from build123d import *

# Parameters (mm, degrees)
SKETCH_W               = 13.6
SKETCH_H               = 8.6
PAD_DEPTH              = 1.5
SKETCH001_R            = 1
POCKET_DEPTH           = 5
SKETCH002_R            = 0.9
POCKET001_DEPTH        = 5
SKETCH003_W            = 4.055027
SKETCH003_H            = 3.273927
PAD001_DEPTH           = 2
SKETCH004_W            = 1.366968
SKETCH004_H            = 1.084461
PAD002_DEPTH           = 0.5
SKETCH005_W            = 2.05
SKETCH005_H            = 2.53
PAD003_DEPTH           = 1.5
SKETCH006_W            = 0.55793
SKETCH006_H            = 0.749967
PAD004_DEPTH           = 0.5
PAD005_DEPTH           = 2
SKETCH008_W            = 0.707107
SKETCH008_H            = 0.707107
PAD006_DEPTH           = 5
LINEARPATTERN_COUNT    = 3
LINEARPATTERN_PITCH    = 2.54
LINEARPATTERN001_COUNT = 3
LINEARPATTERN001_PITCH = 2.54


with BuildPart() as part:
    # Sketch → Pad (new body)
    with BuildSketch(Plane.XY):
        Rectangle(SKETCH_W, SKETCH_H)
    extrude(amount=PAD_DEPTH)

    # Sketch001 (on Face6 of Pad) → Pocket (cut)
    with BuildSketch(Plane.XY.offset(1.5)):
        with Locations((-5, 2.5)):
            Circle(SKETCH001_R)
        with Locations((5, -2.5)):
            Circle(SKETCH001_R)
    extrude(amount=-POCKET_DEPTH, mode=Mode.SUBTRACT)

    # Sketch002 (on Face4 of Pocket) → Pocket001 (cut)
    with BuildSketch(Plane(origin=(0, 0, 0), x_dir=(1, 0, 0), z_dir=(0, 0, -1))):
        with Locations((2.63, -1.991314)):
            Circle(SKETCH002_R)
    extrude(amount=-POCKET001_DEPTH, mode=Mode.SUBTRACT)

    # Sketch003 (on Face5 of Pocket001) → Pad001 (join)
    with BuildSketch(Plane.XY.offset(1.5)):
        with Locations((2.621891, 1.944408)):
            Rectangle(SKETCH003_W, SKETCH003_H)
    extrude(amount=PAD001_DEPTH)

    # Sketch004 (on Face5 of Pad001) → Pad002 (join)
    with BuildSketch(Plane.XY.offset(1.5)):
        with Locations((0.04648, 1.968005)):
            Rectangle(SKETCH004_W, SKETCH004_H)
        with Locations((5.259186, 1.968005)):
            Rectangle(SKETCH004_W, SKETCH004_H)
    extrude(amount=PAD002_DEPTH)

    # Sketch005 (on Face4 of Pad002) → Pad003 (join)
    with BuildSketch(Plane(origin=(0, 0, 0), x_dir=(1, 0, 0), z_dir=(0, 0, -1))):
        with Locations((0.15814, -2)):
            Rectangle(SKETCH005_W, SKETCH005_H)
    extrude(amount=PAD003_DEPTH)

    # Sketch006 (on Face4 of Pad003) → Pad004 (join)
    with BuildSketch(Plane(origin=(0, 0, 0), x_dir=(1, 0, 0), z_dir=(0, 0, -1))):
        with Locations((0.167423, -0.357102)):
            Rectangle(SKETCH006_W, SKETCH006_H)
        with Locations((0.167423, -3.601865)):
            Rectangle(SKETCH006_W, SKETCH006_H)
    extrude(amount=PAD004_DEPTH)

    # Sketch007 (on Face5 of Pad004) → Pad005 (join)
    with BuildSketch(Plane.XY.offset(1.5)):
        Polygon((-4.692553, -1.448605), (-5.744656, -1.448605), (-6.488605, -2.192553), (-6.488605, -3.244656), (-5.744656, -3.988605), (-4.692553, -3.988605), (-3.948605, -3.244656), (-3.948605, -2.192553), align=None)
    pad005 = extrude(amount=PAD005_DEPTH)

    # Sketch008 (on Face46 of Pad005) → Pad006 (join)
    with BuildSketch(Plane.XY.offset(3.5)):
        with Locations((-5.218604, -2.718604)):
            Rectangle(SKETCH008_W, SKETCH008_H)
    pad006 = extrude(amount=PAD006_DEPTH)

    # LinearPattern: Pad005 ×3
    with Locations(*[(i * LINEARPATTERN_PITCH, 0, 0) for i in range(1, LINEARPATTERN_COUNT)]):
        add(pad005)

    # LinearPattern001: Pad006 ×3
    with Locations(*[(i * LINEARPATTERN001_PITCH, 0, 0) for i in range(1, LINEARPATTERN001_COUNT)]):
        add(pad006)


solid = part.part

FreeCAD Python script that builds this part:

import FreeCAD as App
import Part
import Sketcher
from FreeCAD import Vector


def add_polygon(sketch, points):
    """Adds a closed chain of lines whose ends are joined by coincident constraints."""
    first, n = sketch.GeometryCount, len(points)
    for a, b in zip(points, points[1:] + points[:1]):
        sketch.addGeometry(Part.LineSegment(App.Vector(*a, 0), App.Vector(*b, 0)), False)
    for i in range(n):
        sketch.addConstraint(Sketcher.Constraint("Coincident", first + i, 2, first + (i + 1) % n, 1))

doc = App.newDocument("Part")
body = doc.addObject("PartDesign::Body", "Body")

# Sketch on XY plane
sketch1 = body.newObject("Sketcher::SketchObject", "Sketch")
sketch1.AttachmentSupport = (doc.getObject("XY_Plane"), [""])
sketch1.MapMode = "FlatFace"
add_polygon(sketch1, [(-6.8, 4.3), (-6.8, -4.3), (6.8, -4.3), (6.8, 4.3)])  # lines 0-3
sketch1.addConstraint([
    Sketcher.Constraint("Vertical", 0),
    Sketcher.Constraint("Horizontal", 1),
    Sketcher.Constraint("Vertical", 2),
    Sketcher.Constraint("Horizontal", 3),
    Sketcher.Constraint("Symmetric", 0, 2, 2, 2, -1, 1),
    Sketcher.Constraint("DistanceX", 1, 1, 1, 2, 13.6),
    Sketcher.Constraint("DistanceY", 0, 2, 0, 1, 8.6),
])
pad1 = body.newObject("PartDesign::Pad", "Pad")
pad1.Profile = sketch1
pad1.Length = 1.5

# Sketch on XY plane
sketch2 = body.newObject("Sketcher::SketchObject", "Sketch001")
sketch2.AttachmentSupport = (doc.getObject("XY_Plane"), [""])
sketch2.MapMode = "FlatFace"
sketch2.AttachmentOffset = App.Placement(Vector(0, 0, 1.5), App.Rotation())
sketch2.addGeometry([
    Part.Circle(Vector(-5, 2.5, 0), Vector(0, 0, 1), 1),
    Part.Circle(Vector(5, -2.5, 0), Vector(0, 0, 1), 1),
], False)
sketch2.addConstraint([
    Sketcher.Constraint("Equal", 0, 1),
    Sketcher.Constraint("Symmetric", 0, 3, 1, 3, -1, 1),
    Sketcher.Constraint("Diameter", 0, 2.0),
    Sketcher.Constraint("DistanceX", 0, 3, -1, 1, 5.0),
    Sketcher.Constraint("DistanceY", 1, 3, 0, 3, 5.0),
])
pocket1 = body.newObject("PartDesign::Pocket", "Pocket")
pocket1.Profile = sketch2
pocket1.Length = 5

# Sketch on XY plane
sketch3 = body.newObject("Sketcher::SketchObject", "Sketch002")
sketch3.AttachmentSupport = (doc.getObject("XY_Plane"), [""])
sketch3.MapMode = "FlatFace"
sketch3.addGeometry(Part.Circle(Vector(2.63, 1.991314, 0), Vector(0, 0, 1), 0.9), False)
sketch3.addConstraint([
    Sketcher.Constraint("Diameter", 0, 1.8),
    Sketcher.Constraint("DistanceX", -1, 1, 0, 3, 2.63),
    Sketcher.Constraint("DistanceY", -1, 1, 0, 3, 1.991314),
])
pocket2 = body.newObject("PartDesign::Pocket", "Pocket001")
pocket2.Profile = sketch3
pocket2.Length = 5
pocket2.Reversed = True

# Sketch on XY plane
sketch4 = body.newObject("Sketcher::SketchObject", "Sketch003")
sketch4.AttachmentSupport = (doc.getObject("XY_Plane"), [""])
sketch4.MapMode = "FlatFace"
sketch4.AttachmentOffset = App.Placement(Vector(0, 0, 1.5), App.Rotation())
add_polygon(sketch4, [(0.594378, 3.581371), (0.594378, 0.307445), (4.649405, 0.307445), (4.649405, 3.581371)])  # lines 0-3
sketch4.addConstraint([
    Sketcher.Constraint("Vertical", 0),
    Sketcher.Constraint("Horizontal", 1),
    Sketcher.Constraint("Vertical", 2),
    Sketcher.Constraint("Horizontal", 3),
    Sketcher.Constraint("DistanceX", 1, 1, 1, 2, 4.055027),
    Sketcher.Constraint("DistanceY", 0, 2, 0, 1, 3.273927),
    Sketcher.Constraint("DistanceY", -1, 1, 2, 2, 3.581371),
    Sketcher.Constraint("DistanceX", -1, 1, 0, 2, 0.594378),
])
pad2 = body.newObject("PartDesign::Pad", "Pad001")
pad2.Profile = sketch4
pad2.Length = 2

# Sketch on XY plane
sketch5 = body.newObject("Sketcher::SketchObject", "Sketch004")
sketch5.AttachmentSupport = (doc.getObject("XY_Plane"), [""])
sketch5.MapMode = "FlatFace"
sketch5.AttachmentOffset = App.Placement(Vector(0, 0, 1.5), App.Rotation())
add_polygon(sketch5, [(-0.637004, 2.510235), (-0.637004, 1.425774), (0.729964, 1.425774), (0.729964, 2.510235)])  # lines 0-3
add_polygon(sketch5, [(4.575702, 2.510235), (4.575702, 1.425774), (5.94267, 1.425774), (5.94267, 2.510235)])  # lines 4-7
sketch5.addConstraint([
    Sketcher.Constraint("Vertical", 0),
    Sketcher.Constraint("Horizontal", 1),
    Sketcher.Constraint("Vertical", 2),
    Sketcher.Constraint("Horizontal", 3),
    Sketcher.Constraint("Vertical", 4),
    Sketcher.Constraint("Horizontal", 5),
    Sketcher.Constraint("Vertical", 6),
    Sketcher.Constraint("Horizontal", 7),
    Sketcher.Constraint("Horizontal", 1, 2, 4, 2),
    Sketcher.Constraint("Horizontal", 3, 2, 6, 2),
    Sketcher.Constraint("Equal", 3, 5),
    Sketcher.Constraint("DistanceY", 0, 2, 0, 1, 1.084461),
    Sketcher.Constraint("DistanceX", -1, 1, 4, 2, 4.575702),
    Sketcher.Constraint("DistanceX", 1, 1, 1, 2, 1.366968),
    Sketcher.Constraint("DistanceX", 0, 2, -1, 1, 0.637004),
    Sketcher.Constraint("DistanceY", -1, 1, 0, 2, 1.425774),
])
pad3 = body.newObject("PartDesign::Pad", "Pad002")
pad3.Profile = sketch5
pad3.Length = 0.5

# Sketch on XY plane
sketch6 = body.newObject("Sketcher::SketchObject", "Sketch005")
sketch6.AttachmentSupport = (doc.getObject("XY_Plane"), [""])
sketch6.MapMode = "FlatFace"
add_polygon(sketch6, [(-0.86686, 0.735), (-0.86686, 3.265), (1.18314, 3.265), (1.18314, 0.735)])  # lines 0-3
sketch6.addConstraint([
    Sketcher.Constraint("Vertical", 0),
    Sketcher.Constraint("Horizontal", 1),
    Sketcher.Constraint("Vertical", 2),
    Sketcher.Constraint("Horizontal", 3),
    Sketcher.Constraint("DistanceX", 1, 1, 1, 2, 2.05),
    Sketcher.Constraint("DistanceY", 0, 1, 0, 2, 2.53),
    Sketcher.Constraint("DistanceY", -1, 1, 0, 2, 3.265),
    Sketcher.Constraint("DistanceX", 0, 2, -1, 1, 0.86686),
])
pad4 = body.newObject("PartDesign::Pad", "Pad003")
pad4.Profile = sketch6
pad4.Length = 1.5
pad4.Reversed = True

# Sketch on XY plane
sketch7 = body.newObject("Sketcher::SketchObject", "Sketch006")
sketch7.AttachmentSupport = (doc.getObject("XY_Plane"), [""])
sketch7.MapMode = "FlatFace"
add_polygon(sketch7, [(-0.111542, -0.017882), (-0.111542, 0.732085), (0.446388, 0.732085), (0.446388, -0.017882)])  # lines 0-3
add_polygon(sketch7, [(-0.111542, 3.226882), (-0.111542, 3.976849), (0.446388, 3.976849), (0.446388, 3.226882)])  # lines 4-7
sketch7.addConstraint([
    Sketcher.Constraint("Vertical", 0),
    Sketcher.Constraint("Horizontal", 1),
    Sketcher.Constraint("Vertical", 2),
    Sketcher.Constraint("Horizontal", 3),
    Sketcher.Constraint("Vertical", 4),
    Sketcher.Constraint("Horizontal", 5),
    Sketcher.Constraint("Vertical", 6),
    Sketcher.Constraint("Horizontal", 7),
    Sketcher.Constraint("Vertical", 3, 2, 4, 2),
    Sketcher.Constraint("Vertical", 2, 2, 5, 2),
    Sketcher.Constraint("Equal", 2, 4),
    Sketcher.Constraint("DistanceX", 1, 1, 1, 2, 0.55793),
    Sketcher.Constraint("DistanceY", 0, 1, 0, 2, 0.749967),
    Sketcher.Constraint("DistanceY", 2, 2, -1, 1, 0.017882),
    Sketcher.Constraint("DistanceY", -1, 1, 4, 2, 3.976849),
    Sketcher.Constraint("DistanceX", 0, 2, -1, 1, 0.111542),
])
pad5 = body.newObject("PartDesign::Pad", "Pad004")
pad5.Profile = sketch7
pad5.Length = 0.5
pad5.Reversed = True

# Sketch on XY plane
sketch8 = body.newObject("Sketcher::SketchObject", "Sketch007")
sketch8.AttachmentSupport = (doc.getObject("XY_Plane"), [""])
sketch8.MapMode = "FlatFace"
sketch8.AttachmentOffset = App.Placement(Vector(0, 0, 1.5), App.Rotation())
add_polygon(sketch8, [(-4.692553, -1.448605), (-5.744656, -1.448605), (-6.488605, -2.192553), (-6.488605, -3.244656), (-5.744656, -3.988605), (-4.692553, -3.988605), (-3.948605, -3.244656), (-3.948605, -2.192553)])  # lines 0-7
sketch8.addConstraint([
    Sketcher.Constraint("Horizontal", 0),
    Sketcher.Constraint("Vertical", 2),
    Sketcher.Constraint("Horizontal", 4),
    Sketcher.Constraint("Vertical", 6),
    Sketcher.Constraint("Perpendicular", 1, 3),
    Sketcher.Constraint("Perpendicular", 3, 5),
    Sketcher.Constraint("Perpendicular", 5, 7),
    Sketcher.Constraint("Horizontal", 2, 2, 5, 2),
    Sketcher.Constraint("Horizontal", 1, 2, 6, 2),
    Sketcher.Constraint("Vertical", 0, 2, 3, 2),
    Sketcher.Constraint("Vertical", 4, 2, 7, 2),
    Sketcher.Constraint("Equal", 4, 2),
    Sketcher.Constraint("DistanceY", 3, 2, 0, 2, 2.54),
    Sketcher.Constraint("Distance", 7, 1.052101),
    Sketcher.Constraint("DistanceX", 0, 2, -1, 1, 5.744656),
    Sketcher.Constraint("DistanceY", 0, 2, -1, 1, 1.448605),
])
pad6 = body.newObject("PartDesign::Pad", "Pad005")
pad6.Profile = sketch8
pad6.Length = 2

# Sketch on XY plane
sketch9 = body.newObject("Sketcher::SketchObject", "Sketch008")
sketch9.AttachmentSupport = (doc.getObject("XY_Plane"), [""])
sketch9.MapMode = "FlatFace"
sketch9.AttachmentOffset = App.Placement(Vector(0, 0, 3.5), App.Rotation())
add_polygon(sketch9, [(-5.572158, -2.365051), (-5.572158, -3.072157), (-4.86505, -3.072157), (-4.86505, -2.365051)])  # lines 0-3
sketch9.addConstraint([
    Sketcher.Constraint("Vertical", 0),
    Sketcher.Constraint("Horizontal", 1),
    Sketcher.Constraint("Vertical", 2),
    Sketcher.Constraint("Horizontal", 3),
    Sketcher.Constraint("Equal", 3, 0),
    Sketcher.Constraint("DistanceX", 1, 1, 1, 2, 0.707107),
    Sketcher.Constraint("DistanceX", 1, 2, -1, 1, 4.86505),
    Sketcher.Constraint("DistanceY", 2, 2, -1, 1, 2.365051),
])
pad7 = body.newObject("PartDesign::Pad", "Pad006")
pad7.Profile = sketch9
pad7.Length = 5
doc.recompute()

linearpattern = body.newObject("PartDesign::LinearPattern", "LinearPattern")
linearpattern.Originals = [pad6]
linearpattern.Direction = (doc.getObject("X_Axis"), [""])
linearpattern.Mode = "offset"
linearpattern.Offset = 2.54
linearpattern.Occurrences = 3
body.Tip = linearpattern
doc.recompute()

linearpattern2 = body.newObject("PartDesign::LinearPattern", "LinearPattern001")
linearpattern2.Originals = [pad7]
linearpattern2.Direction = (doc.getObject("X_Axis"), [""])
linearpattern2.Mode = "offset"
linearpattern2.Offset = 2.54
linearpattern2.Occurrences = 3
body.Tip = linearpattern2

doc.recompute()
